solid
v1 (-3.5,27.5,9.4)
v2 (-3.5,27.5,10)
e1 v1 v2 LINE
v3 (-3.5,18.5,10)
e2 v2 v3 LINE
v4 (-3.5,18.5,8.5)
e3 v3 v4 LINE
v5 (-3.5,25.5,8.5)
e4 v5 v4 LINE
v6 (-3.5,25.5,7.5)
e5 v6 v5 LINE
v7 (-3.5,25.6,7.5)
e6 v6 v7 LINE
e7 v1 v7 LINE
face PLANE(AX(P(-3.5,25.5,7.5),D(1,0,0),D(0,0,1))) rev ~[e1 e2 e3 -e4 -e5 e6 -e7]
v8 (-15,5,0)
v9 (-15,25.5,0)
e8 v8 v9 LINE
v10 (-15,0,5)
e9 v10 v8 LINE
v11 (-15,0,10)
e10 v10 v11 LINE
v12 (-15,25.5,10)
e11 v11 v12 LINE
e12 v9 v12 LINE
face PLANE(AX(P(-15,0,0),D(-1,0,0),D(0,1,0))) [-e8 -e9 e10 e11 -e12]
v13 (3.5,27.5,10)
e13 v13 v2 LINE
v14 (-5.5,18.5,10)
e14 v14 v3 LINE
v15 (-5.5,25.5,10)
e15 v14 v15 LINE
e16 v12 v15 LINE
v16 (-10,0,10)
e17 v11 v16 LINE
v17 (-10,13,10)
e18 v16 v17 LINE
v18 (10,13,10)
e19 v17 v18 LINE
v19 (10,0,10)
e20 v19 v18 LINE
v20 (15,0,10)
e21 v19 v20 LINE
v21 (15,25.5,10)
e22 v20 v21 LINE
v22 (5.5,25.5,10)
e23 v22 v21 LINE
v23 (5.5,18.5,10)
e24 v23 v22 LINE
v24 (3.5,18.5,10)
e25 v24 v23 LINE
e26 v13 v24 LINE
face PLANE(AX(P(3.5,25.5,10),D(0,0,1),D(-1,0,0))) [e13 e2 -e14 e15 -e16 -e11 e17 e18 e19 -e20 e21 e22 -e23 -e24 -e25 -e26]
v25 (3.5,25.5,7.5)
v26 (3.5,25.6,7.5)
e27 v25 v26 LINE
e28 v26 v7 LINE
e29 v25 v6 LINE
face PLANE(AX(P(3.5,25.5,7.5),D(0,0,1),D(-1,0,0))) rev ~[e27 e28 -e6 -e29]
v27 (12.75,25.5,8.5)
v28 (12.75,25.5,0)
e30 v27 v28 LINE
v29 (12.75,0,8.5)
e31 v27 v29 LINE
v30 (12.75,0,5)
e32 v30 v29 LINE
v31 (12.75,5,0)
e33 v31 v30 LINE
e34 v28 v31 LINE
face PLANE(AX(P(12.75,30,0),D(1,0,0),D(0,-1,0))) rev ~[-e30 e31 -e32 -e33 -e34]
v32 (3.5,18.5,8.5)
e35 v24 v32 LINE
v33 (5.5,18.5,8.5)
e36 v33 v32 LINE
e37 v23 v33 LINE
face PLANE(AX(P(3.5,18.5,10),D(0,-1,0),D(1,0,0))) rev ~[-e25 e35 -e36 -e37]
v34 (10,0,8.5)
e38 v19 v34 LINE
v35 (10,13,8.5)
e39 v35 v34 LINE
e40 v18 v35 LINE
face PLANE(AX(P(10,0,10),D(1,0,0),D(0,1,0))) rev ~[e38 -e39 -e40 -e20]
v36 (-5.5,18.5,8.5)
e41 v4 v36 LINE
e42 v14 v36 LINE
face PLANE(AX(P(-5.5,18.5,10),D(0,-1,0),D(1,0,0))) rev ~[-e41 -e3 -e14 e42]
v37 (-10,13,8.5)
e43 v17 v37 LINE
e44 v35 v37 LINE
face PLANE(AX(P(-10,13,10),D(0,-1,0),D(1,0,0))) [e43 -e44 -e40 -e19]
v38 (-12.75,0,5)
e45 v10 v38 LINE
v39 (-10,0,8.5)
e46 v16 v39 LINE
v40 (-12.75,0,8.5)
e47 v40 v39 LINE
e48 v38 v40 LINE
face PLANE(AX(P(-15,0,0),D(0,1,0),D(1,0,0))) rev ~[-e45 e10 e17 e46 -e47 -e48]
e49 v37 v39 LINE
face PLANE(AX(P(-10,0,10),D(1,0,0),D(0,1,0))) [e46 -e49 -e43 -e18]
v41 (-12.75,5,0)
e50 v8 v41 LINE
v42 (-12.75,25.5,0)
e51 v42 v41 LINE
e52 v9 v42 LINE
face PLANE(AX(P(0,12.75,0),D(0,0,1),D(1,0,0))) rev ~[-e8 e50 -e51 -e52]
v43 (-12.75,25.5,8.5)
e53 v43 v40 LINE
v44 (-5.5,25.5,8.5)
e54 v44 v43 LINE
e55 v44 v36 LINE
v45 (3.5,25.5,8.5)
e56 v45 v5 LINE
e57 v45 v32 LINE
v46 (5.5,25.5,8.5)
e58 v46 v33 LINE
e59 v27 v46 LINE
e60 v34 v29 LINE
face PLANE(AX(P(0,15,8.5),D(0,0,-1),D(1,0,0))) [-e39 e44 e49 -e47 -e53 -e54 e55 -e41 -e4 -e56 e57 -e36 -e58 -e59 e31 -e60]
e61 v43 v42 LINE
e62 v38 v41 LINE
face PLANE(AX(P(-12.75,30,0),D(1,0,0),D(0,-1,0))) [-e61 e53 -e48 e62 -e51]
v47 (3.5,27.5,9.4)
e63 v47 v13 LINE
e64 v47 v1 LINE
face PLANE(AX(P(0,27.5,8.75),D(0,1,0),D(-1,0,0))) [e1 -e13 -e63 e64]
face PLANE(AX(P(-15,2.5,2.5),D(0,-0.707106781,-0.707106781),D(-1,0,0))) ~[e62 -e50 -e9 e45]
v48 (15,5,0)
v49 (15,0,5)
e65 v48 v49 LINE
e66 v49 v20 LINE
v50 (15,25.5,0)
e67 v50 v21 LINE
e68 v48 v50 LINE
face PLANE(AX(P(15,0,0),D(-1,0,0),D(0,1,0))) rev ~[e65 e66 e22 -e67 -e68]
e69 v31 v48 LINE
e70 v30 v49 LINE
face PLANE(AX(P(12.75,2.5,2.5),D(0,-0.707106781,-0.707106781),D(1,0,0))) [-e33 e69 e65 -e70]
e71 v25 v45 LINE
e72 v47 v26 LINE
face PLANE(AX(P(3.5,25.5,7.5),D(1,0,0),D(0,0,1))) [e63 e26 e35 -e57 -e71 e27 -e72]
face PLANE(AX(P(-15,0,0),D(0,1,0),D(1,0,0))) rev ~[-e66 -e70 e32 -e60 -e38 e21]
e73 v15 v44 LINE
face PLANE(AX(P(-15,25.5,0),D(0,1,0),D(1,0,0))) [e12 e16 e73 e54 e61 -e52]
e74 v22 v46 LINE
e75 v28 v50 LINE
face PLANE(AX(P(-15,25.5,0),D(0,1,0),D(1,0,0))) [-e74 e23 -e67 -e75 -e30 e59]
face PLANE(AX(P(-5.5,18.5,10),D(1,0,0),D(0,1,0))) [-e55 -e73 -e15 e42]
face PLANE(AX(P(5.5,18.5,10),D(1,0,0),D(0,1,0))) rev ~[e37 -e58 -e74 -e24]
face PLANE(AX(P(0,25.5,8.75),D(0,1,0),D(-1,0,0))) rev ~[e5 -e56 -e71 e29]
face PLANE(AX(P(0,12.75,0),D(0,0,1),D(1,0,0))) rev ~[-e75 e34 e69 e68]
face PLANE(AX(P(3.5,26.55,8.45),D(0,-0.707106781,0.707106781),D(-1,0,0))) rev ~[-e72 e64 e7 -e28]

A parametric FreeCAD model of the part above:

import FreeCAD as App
import Part
import Sketcher

V = App.Vector
Q = App.Units.Quantity


def edges_at(feature, points):
    """Names of the edges that pass closest to the given points."""
    edges = feature.Shape.Edges
    near = lambda p: min(range(len(edges)), key=lambda i: edges[i].distToShape(Part.Vertex(*p))[0])
    return sorted({f"Edge{near(p) + 1}" for p in points})


def add_polygon(sketch, points):
    """Adds a closed chain of lines whose ends are joined by coincident constraints."""
    first, n = sketch.GeometryCount, len(points)
    for a, b in zip(points, points[1:] + points[:1]):
        sketch.addGeometry(Part.LineSegment(App.Vector(*a, 0), App.Vector(*b, 0)), False)
    for i in range(n):
        sketch.addConstraint(Sketcher.Constraint("Coincident", first + i, 2, first + (i + 1) % n, 1))

doc = App.newDocument("Part")
body = doc.addObject("PartDesign::Body", "Body")

# Sketch on XY plane
sketch1 = body.newObject("Sketcher::SketchObject", "Sketch")
sketch1.AttachmentSupport = (doc.getObject("XY_Plane"), [""])
sketch1.MapMode = "FlatFace"
add_polygon(sketch1, [(-15, 26), (-15, 0), (15, 0), (15, 26)])  # lines 0-3
sketch1.addConstraint(Sketcher.Constraint("Vertical", 0))
sketch1.addConstraint(Sketcher.Constraint("Horizontal", 1))
sketch1.addConstraint(Sketcher.Constraint("Vertical", 2))
sketch1.addConstraint(Sketcher.Constraint("Horizontal", 3))
sketch1.addConstraint(Sketcher.Constraint("Symmetric", 0, 2, 1, 2, -1, 1))
sketch1.addConstraint(Sketcher.Constraint("DistanceX", 1, 1, 1, 2, Q("30 mm")))
sketch1.addConstraint(Sketcher.Constraint("DistanceY", 0, 2, 0, 1, Q("25.5 mm")))
pad1 = body.newObject("PartDesign::Pad", "Pad")
pad1.Profile = sketch1
pad1.Length = 10

# Sketch on XY plane
sketch2 = body.newObject("Sketcher::SketchObject", "Sketch001")
sketch2.AttachmentSupport = (doc.getObject("XY_Plane"), [""])
sketch2.MapMode = "FlatFace"
add_polygon(sketch2, [(-13, 0), (-13, 30), (13, 30), (13, 0)])  # lines 0-3
sketch2.addConstraint(Sketcher.Constraint("Vertical", 0))
sketch2.addConstraint(Sketcher.Constraint("Horizontal", 1))
sketch2.addConstraint(Sketcher.Constraint("Vertical", 2))
sketch2.addConstraint(Sketcher.Constraint("Horizontal", 3))
sketch2.addConstraint(Sketcher.Constraint("Symmetric", 2, 2, 3, 2, -1, 1))
sketch2.addConstraint(Sketcher.Constraint("DistanceY", 0, 1, 0, 2, Q("30 mm")))
sketch2.addConstraint(Sketcher.Constraint("DistanceX", 1, 1, 1, 2, Q("25.5 mm")))
pocket1 = body.newObject("PartDesign::Pocket", "Pocket")
pocket1.Profile = sketch2
pocket1.Length = 8.5
pocket1.Reversed = True

# Sketch on XY plane
sketch3 = body.newObject("Sketcher::SketchObject", "Sketch002")
sketch3.AttachmentSupport = (doc.getObject("XY_Plane"), [""])
sketch3.MapMode = "FlatFace"
sketch3.AttachmentOffset = App.Placement(V(0, 0, 10), App.Rotation())
add_polygon(sketch3, [(-10, 13), (-10, 0), (10, 0), (10, 13)])  # lines 0-3
sketch3.addConstraint(Sketcher.Constraint("Vertical", 0))
sketch3.addConstraint(Sketcher.Constraint("Horizontal", 1))
sketch3.addConstraint(Sketcher.Constraint("Vertical", 2))
sketch3.addConstraint(Sketcher.Constraint("Horizontal", 3))
sketch3.addConstraint(Sketcher.Constraint("Symmetric", 0, 2, 1, 2, -1, 1))
sketch3.addConstraint(Sketcher.Constraint("DistanceX", 1, 1, 1, 2, Q("20 mm")))
sketch3.addConstraint(Sketcher.Constraint("DistanceY", 0, 2, 0, 1, Q("13 mm")))
pocket2 = body.newObject("PartDesign::Pocket", "Pocket001")
pocket2.Profile = sketch3
pocket2.Length = 5
doc.recompute()

chamfer = body.newObject("PartDesign::Chamfer", "Chamfer")
chamfer.Base = (pocket2, edges_at(pocket2, [(13.875, 0, 0), (-13.875, 0, 0)]))
chamfer.Size = 5

# Sketch on XY plane
sketch4 = body.newObject("Sketcher::SketchObject", "Sketch003")
sketch4.AttachmentSupport = (doc.getObject("XY_Plane"), [""])
sketch4.MapMode = "FlatFace"
sketch4.AttachmentOffset = App.Placement(V(0, 0, 10), App.Rotation())
add_polygon(sketch4, [(-5.5, 25.5), (-5.5, 18.5), (-3.5, 18.5), (-3.5, 25.5)])  # lines 0-3
add_polygon(sketch4, [(3.5, 25.5), (3.5, 18.5), (5.5, 18.5), (5.5, 25.5)])  # lines 4-7
sketch4.addConstraint(Sketcher.Constraint("Vertical", 0))
sketch4.addConstraint(Sketcher.Constraint("Horizontal", 1))
sketch4.addConstraint(Sketcher.Constraint("Vertical", 2))
sketch4.addConstraint(Sketcher.Constraint("Horizontal", 3))
sketch4.addConstraint(Sketcher.Constraint("Vertical", 4))
sketch4.addConstraint(Sketcher.Constraint("Horizontal", 5))
sketch4.addConstraint(Sketcher.Constraint("Vertical", 6))
sketch4.addConstraint(Sketcher.Constraint("Horizontal", 7))
sketch4.addConstraint(Sketcher.Constraint("Symmetric", 1, 2, 4, 2, -2))
sketch4.addConstraint(Sketcher.Constraint("Symmetric", 3, 2, 6, 2, -2))
sketch4.addConstraint(Sketcher.Constraint("DistanceX", 1, 1, 1, 2, Q("2 mm")))
sketch4.addConstraint(Sketcher.Constraint("DistanceY", 0, 2, 0, 1, Q("7 mm")))
sketch4.addConstraint(Sketcher.Constraint("DistanceX", 1, 2, 4, 2, Q("7 mm")))
sketch4.addConstraint(Sketcher.Constraint("DistanceY", -1, 1, 0, 2, Q("18.5 mm")))
pocket3 = body.newObject("PartDesign::Pocket", "Pocket002")
pocket3.Profile = sketch4
pocket3.Length = 5

# Sketch on XZ plane
sketch5 = body.newObject("Sketcher::SketchObject", "Sketch004")
sketch5.AttachmentSupport = (doc.getObject("XZ_Plane"), [""])
sketch5.MapMode = "FlatFace"
sketch5.AttachmentOffset = App.Placement(V(0, 0, -25.5), App.Rotation())
add_polygon(sketch5, [(3.5, 10), (3.5, 7.5), (-3.5, 7.5), (-3.5, 10)])  # lines 0-3
sketch5.addConstraint(Sketcher.Constraint("Vertical", 0))
sketch5.addConstraint(Sketcher.Constraint("Horizontal", 1))
sketch5.addConstraint(Sketcher.Constraint("Vertical", 2))
sketch5.addConstraint(Sketcher.Constraint("Horizontal", 3))
sketch5.addConstraint(Sketcher.Constraint("DistanceX", 1, 2, 1, 1, Q("7 mm")))
sketch5.addConstraint(Sketcher.Constraint("DistanceY", 0, 2, 0, 1, Q("2.5 mm")))
sketch5.addConstraint(Sketcher.Constraint("DistanceY", -1, 1, 2, 2, Q("10 mm")))
sketch5.addConstraint(Sketcher.Constraint("DistanceX", -1, 1, 0, 2, Q("3.5 mm")))
pad2 = body.newObject("PartDesign::Pad", "Pad001")
pad2.Profile = sketch5
pad2.Length = 2
pad2.Reversed = True
doc.recompute()

chamfer2 = body.newObject("PartDesign::Chamfer", "Chamfer001")
chamfer2.Base = (pad2, edges_at(pad2, [(0, 27.5, 7.5)]))
chamfer2.Size = 1.9

doc.recompute()
